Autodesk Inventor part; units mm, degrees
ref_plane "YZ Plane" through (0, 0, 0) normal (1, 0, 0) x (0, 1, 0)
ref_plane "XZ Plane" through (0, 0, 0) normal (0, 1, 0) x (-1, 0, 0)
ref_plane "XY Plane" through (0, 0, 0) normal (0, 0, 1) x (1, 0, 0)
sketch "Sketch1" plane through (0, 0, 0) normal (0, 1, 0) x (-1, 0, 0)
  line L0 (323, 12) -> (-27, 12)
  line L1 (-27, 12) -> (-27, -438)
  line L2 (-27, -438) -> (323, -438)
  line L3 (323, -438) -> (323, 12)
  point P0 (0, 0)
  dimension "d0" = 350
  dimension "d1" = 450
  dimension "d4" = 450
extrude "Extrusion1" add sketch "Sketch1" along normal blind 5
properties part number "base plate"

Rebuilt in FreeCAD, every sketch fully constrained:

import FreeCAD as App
import Part
import Sketcher
from FreeCAD import Vector

doc = App.newDocument("Part")
params = doc.addObject("Spreadsheet::Sheet", "Params")
for row, (alias, value) in enumerate([
    ("sketch1_width", "350 mm"),
    ("sketch1_height", "450 mm"),
    ("pad1_length", "5 mm"),
], start=1):
    params.set(f"A{row}", alias)
    params.set(f"B{row}", "=" + value)
    params.setAlias(f"B{row}", alias)

body = doc.addObject("PartDesign::Body", "Body")

sketch1 = body.newObject("Sketcher::SketchObject", "Sketch")
sketch1.AttachmentSupport = (doc.getObject("XZ_Plane"), [""])
sketch1.MapMode = "FlatFace"
sketch1.addGeometry([
    Part.LineSegment(Vector(-323, -438, 0), Vector(-323, 12, 0)),
    Part.LineSegment(Vector(-323, 12, 0), Vector(27, 12, 0)),
    Part.LineSegment(Vector(27, 12, 0), Vector(27, -438, 0)),
    Part.LineSegment(Vector(27, -438, 0), Vector(-323, -438, 0)),
], False)
sketch1.addConstraint([
    Sketcher.Constraint("Coincident", 0, 2, 1, 1),
    Sketcher.Constraint("Coincident", 1, 2, 2, 1),
    Sketcher.Constraint("Coincident", 2, 2, 3, 1),
    Sketcher.Constraint("Coincident", 3, 2, 0, 1),
    Sketcher.Constraint("Vertical", 0),
    Sketcher.Constraint("Horizontal", 1),
    Sketcher.Constraint("Vertical", 2),
    Sketcher.Constraint("Horizontal", 3),
    Sketcher.Constraint("DistanceX", 1, 1, 1, 2, 350.0),
    Sketcher.Constraint("DistanceY", 0, 1, 0, 2, 450.0),
    Sketcher.Constraint("DistanceX", 0, 2, -1, 1, 323.0),
    Sketcher.Constraint("DistanceY", -1, 1, 0, 2, 12.0),
])
sketch1.setExpression("Constraints[8]", "Params.sketch1_width")
sketch1.setExpression("Constraints[9]", "Params.sketch1_height")
pad1 = body.newObject("PartDesign::Pad", "Pad")
pad1.Profile = sketch1
pad1.setExpression("Length", "Params.pad1_length")
pad1.Reversed = True

doc.recompute()
